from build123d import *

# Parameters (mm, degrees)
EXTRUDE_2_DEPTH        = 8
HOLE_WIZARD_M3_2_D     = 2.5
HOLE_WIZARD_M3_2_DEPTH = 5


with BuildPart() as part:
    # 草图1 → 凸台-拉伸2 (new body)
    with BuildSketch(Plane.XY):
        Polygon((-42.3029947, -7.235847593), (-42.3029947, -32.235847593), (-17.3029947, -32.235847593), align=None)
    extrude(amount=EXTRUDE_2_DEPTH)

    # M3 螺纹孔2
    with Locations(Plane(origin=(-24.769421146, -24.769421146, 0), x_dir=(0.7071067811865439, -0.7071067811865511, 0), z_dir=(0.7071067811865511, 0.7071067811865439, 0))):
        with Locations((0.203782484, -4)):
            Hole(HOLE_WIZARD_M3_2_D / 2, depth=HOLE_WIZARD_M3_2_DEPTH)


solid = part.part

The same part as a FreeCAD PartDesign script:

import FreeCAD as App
import Part
import Sketcher

doc = App.newDocument("Part")
body = doc.addObject("PartDesign::Body", "Body")

sketch1 = body.newObject("Sketcher::SketchObject", "Sketch")
sketch1.AttachmentSupport = (doc.getObject("XY_Plane"), [""])
sketch1.MapMode = "FlatFace"
sketch1.addGeometry([
    Part.LineSegment(App.Vector(-42, -7, 0), App.Vector(-42, -32, 0)),
    Part.LineSegment(App.Vector(-42, -32, 0), App.Vector(-17, -32, 0)),
    Part.LineSegment(App.Vector(-17, -32, 0), App.Vector(-42, -7, 0)),
], False)
sketch1.addConstraint([
    Sketcher.Constraint("Coincident", 0, 2, 1, 1),
    Sketcher.Constraint("Coincident", 1, 2, 2, 1),
    Sketcher.Constraint("Coincident", 2, 2, 0, 1),
    Sketcher.Constraint("Vertical", 0),
    Sketcher.Constraint("Horizontal", 1),
    Sketcher.Constraint("Equal", 1, 0),
    Sketcher.Constraint("DistanceX", 1, 1, 1, 2, 25.0),
    Sketcher.Constraint("DistanceX", 0, 2, -1, 1, 42.302995),
    Sketcher.Constraint("DistanceY", 0, 2, -1, 1, 32.235848),
])
pad1 = body.newObject("PartDesign::Pad", "Pad")
pad1.Profile = sketch1
pad1.Length = 8

sketch2 = body.newObject("Sketcher::SketchObject", "Sketch001")
sketch2.Placement = App.Placement(App.Vector(-24.769421, -24.769421, 0), App.Rotation(App.Vector(0.707106781, -0.707106781, 0), App.Vector(0, 0, -0.999999999), App.Vector(0.707106781, 0.707106781, 0), "ZXY"))
sketch2.addGeometry(Part.Circle(App.Vector(0.2, -4, 0), App.Vector(0, 0, 1), 1.2), False)
sketch2.addConstraint([
    Sketcher.Constraint("Diameter", 0, 2.5),
    Sketcher.Constraint("DistanceY", 0, 3, -1, 1, 4.0),
    Sketcher.Constraint("DistanceX", -1, 1, 0, 3, 0.203782),
])
doc.recompute()
hole = body.newObject("PartDesign::Hole", "Hole")
hole.Profile = sketch2
hole.ThreadType = "None"
hole.Diameter = 2.5
hole.DepthType = "Dimension"
hole.Depth = 5
hole.DrillPoint = "Flat"

doc.recompute()
